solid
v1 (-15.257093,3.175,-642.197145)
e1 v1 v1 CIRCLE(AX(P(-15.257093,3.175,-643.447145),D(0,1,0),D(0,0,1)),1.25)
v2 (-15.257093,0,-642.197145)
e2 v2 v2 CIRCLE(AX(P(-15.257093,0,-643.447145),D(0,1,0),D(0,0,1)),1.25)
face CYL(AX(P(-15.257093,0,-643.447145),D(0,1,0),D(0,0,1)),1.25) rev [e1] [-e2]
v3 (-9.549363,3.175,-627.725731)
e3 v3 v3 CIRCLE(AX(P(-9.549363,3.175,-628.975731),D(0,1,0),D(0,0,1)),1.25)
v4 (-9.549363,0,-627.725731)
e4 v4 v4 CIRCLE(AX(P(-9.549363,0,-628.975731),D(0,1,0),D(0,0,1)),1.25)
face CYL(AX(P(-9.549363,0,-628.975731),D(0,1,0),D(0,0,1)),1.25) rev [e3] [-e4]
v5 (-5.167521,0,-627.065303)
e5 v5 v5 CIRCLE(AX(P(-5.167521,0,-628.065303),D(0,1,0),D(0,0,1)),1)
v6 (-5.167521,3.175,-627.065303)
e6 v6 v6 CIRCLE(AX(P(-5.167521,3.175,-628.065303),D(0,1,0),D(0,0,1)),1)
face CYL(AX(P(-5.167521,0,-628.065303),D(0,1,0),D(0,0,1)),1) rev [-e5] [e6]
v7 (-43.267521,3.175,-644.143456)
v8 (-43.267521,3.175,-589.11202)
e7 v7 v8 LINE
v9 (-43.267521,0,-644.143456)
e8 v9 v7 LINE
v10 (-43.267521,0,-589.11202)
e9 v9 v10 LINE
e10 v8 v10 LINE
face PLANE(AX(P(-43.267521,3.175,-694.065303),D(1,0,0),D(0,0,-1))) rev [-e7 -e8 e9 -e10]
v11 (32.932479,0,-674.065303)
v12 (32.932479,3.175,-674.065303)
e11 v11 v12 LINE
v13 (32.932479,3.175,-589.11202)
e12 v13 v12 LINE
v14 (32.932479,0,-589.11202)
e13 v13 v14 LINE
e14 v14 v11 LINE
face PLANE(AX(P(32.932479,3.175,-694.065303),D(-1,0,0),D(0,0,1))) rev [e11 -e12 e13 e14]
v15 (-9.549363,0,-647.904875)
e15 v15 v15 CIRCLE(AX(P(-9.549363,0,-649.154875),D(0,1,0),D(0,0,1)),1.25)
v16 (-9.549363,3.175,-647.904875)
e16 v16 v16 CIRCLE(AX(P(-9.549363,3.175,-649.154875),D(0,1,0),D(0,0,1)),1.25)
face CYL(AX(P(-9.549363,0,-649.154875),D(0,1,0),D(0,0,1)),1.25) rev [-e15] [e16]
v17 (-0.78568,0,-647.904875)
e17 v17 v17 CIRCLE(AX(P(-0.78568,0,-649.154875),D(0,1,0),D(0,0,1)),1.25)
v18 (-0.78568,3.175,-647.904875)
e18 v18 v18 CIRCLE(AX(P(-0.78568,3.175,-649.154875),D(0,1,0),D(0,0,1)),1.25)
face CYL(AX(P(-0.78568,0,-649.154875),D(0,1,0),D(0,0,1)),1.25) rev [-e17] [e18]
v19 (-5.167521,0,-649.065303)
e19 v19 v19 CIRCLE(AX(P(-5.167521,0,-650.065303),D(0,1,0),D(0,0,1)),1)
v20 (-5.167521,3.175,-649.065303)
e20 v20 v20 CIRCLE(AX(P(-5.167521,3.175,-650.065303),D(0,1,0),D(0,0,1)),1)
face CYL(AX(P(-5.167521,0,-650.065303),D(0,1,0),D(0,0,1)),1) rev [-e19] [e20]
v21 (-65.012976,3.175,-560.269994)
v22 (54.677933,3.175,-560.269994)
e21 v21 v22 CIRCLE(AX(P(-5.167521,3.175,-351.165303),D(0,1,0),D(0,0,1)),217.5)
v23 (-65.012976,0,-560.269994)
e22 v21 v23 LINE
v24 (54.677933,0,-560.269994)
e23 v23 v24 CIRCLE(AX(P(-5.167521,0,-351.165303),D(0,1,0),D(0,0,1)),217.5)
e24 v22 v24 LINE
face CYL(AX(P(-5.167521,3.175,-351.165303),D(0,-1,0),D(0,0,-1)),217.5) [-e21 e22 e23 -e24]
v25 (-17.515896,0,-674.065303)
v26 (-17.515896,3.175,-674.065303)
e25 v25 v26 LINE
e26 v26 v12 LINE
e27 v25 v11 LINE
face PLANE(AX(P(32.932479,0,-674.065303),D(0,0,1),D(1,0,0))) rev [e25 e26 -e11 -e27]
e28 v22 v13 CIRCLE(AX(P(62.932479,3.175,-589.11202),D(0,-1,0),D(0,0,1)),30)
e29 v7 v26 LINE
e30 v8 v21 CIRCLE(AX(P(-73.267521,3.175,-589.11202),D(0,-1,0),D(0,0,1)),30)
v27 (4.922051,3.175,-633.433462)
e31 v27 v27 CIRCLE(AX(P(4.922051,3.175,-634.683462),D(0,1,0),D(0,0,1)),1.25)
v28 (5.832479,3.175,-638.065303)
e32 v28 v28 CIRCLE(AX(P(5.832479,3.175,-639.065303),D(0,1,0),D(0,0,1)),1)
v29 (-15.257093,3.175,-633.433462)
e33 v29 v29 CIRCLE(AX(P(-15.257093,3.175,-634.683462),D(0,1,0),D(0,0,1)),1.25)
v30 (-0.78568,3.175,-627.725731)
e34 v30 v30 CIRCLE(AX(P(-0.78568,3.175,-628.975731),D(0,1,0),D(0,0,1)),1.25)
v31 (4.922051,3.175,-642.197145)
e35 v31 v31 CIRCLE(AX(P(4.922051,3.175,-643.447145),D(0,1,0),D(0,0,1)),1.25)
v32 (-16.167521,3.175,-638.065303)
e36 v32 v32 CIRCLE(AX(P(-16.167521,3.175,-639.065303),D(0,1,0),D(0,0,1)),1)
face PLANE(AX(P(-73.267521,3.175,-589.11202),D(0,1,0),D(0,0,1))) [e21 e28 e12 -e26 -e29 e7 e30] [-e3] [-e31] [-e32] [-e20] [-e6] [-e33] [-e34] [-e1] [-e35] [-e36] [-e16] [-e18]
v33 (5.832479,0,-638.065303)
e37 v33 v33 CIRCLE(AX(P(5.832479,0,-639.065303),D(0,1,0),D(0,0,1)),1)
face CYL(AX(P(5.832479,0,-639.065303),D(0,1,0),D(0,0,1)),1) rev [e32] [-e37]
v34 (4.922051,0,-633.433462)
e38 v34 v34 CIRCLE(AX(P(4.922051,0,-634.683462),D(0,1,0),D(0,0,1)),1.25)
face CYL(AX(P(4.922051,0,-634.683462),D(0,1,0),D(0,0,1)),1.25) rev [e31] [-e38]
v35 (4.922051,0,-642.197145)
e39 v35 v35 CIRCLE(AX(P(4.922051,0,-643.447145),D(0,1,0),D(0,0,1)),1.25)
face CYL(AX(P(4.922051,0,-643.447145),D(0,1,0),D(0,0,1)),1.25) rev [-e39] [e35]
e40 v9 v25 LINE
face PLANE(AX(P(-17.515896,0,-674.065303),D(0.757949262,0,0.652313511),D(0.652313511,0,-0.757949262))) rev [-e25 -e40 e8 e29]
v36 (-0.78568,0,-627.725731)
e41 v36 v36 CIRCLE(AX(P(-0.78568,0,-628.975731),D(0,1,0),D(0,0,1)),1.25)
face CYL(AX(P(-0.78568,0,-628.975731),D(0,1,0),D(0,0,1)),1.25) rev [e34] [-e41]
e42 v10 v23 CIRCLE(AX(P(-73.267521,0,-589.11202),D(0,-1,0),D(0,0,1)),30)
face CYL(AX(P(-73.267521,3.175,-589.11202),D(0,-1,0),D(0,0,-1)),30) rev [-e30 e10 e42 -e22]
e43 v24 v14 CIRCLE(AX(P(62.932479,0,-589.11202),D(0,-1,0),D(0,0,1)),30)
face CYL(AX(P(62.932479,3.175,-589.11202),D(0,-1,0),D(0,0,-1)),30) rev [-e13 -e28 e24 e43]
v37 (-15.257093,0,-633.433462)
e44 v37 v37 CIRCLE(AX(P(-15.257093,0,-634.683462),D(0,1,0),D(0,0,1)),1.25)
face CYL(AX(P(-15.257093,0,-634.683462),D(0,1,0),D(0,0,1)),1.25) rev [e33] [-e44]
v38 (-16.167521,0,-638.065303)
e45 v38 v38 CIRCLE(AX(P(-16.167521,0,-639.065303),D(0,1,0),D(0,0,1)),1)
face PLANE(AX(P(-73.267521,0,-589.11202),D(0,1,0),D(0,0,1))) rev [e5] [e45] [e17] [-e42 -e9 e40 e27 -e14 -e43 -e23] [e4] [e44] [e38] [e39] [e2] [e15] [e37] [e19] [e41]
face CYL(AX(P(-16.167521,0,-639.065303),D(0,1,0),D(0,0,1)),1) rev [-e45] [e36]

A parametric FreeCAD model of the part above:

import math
import FreeCAD as App
import Part
import Sketcher

V = App.Vector

doc = App.newDocument("Part")
body = doc.addObject("PartDesign::Body", "Body")

sketch1 = doc.addObject("Sketcher::SketchObject", "Sketch")
body.addObject(sketch1)
sketch1.AttachmentSupport = (doc.XZ_Plane, [""])
sketch1.MapMode = "FlatFace"
sketch1.addGeometry([
    Part.LineSegment(V(32.932479, -694.065303, 0), V(-43.267521, -694.065303, 0)),
    Part.LineSegment(V(-43.267521, -694.065303, 0), V(-43.267521, -589.11202, 0)),
    Part.ArcOfCircle(Part.Circle(V(-73.267521, -589.11202, 0), V(0, 0, 1), 30), math.radians(0), math.radians(74.028956)),
    Part.ArcOfCircle(Part.Circle(V(-5.167521, -351.165303, 0), V(0, 0, 1), 217.5), math.radians(-74.028956), math.radians(254.028956)),
    Part.ArcOfCircle(Part.Circle(V(62.932479, -589.11202, 0), V(0, 0, 1), 30), math.radians(105.971044), math.radians(180)),
    Part.LineSegment(V(32.932479, -589.11202, 0), V(32.932479, -694.065303, 0)),
], False)
sketch1.addConstraint([
    Sketcher.Constraint("Coincident", 0, 2, 1, 1),
    Sketcher.Constraint("Tangent", 1, 2, 2, 1),
    Sketcher.Constraint("Tangent", 2, 2, 3, 2),
    Sketcher.Constraint("Tangent", 3, 1, 4, 1),
    Sketcher.Constraint("Tangent", 4, 2, 5, 1),
    Sketcher.Constraint("Coincident", 5, 2, 0, 1),
    Sketcher.Constraint("Horizontal", 0),
    Sketcher.Constraint("Vertical", 1),
    Sketcher.Constraint("Vertical", 5),
    Sketcher.Constraint("Equal", 2, 4),
    Sketcher.Constraint("Horizontal", 2, 3, 4, 3),
    Sketcher.Constraint("Radius", 2, 30.0),
    Sketcher.Constraint("Radius", 3, 217.5),
    Sketcher.Constraint("DistanceX", 0, 2, 0, 1, 76.2),
    Sketcher.Constraint("DistanceY", 0, 2, 3, 3, 342.9),
    Sketcher.Constraint("DistanceX", 2, 3, -1, 1, 73.267521),
    Sketcher.Constraint("DistanceY", 2, 3, -1, 1, 589.11202),
])
pad1 = doc.addObject("PartDesign::Pad", "Pad")
body.addObject(pad1)
pad1.Profile = sketch1
pad1.Length = 3.175
pad1.Reversed = True

sketch2 = doc.addObject("Sketcher::SketchObject", "Sketch001")
body.addObject(sketch2)
sketch2.AttachmentSupport = (doc.XZ_Plane, [""])
sketch2.MapMode = "FlatFace"
sketch2.AttachmentOffset = App.Placement(V(0, 0, -3.175), App.Rotation())
sketch2.addGeometry([
    Part.Circle(V(-15.257093, -634.683462, 0), V(0, 0, 1), 1.25),
    Part.Circle(V(-16.167521, -639.065303, 0), V(0, 0, 1), 1),
    Part.Circle(V(-15.257093, -643.447145, 0), V(0, 0, 1), 1.25),
    Part.Circle(V(-5.167521, -628.065303, 0), V(0, 0, 1), 1),
    Part.Circle(V(-9.549363, -628.975731, 0), V(0, 0, 1), 1.25),
    Part.Circle(V(-0.78568, -628.975731, 0), V(0, 0, 1), 1.25),
    Part.Circle(V(-9.549363, -649.154875, 0), V(0, 0, 1), 1.25),
    Part.Circle(V(-5.167521, -650.065303, 0), V(0, 0, 1), 1),
    Part.Circle(V(-0.78568, -649.154875, 0), V(0, 0, 1), 1.25),
    Part.Circle(V(4.922051, -643.447145, 0), V(0, 0, 1), 1.25),
    Part.Circle(V(5.832479, -639.065303, 0), V(0, 0, 1), 1),
    Part.Circle(V(4.922051, -634.683462, 0), V(0, 0, 1), 1.25),
], False)
sketch2.addConstraint([
    Sketcher.Constraint("Equal", 0, 2),
    Sketcher.Constraint("Equal", 1, 3),
    Sketcher.Constraint("Equal", 2, 4),
    Sketcher.Constraint("Equal", 4, 5),
    Sketcher.Constraint("Equal", 5, 6),
    Sketcher.Constraint("Equal", 3, 7),
    Sketcher.Constraint("Equal", 6, 8),
    Sketcher.Constraint("Equal", 8, 9),
    Sketcher.Constraint("Equal", 7, 10),
    Sketcher.Constraint("Equal", 9, 11),
    Sketcher.Constraint("Horizontal", 4, 3, 5, 3),
    Sketcher.Constraint("Horizontal", 6, 3, 8, 3),
    Sketcher.Constraint("Horizontal", 2, 3, 9, 3),
    Sketcher.Constraint("Horizontal", 1, 3, 10, 3),
    Sketcher.Constraint("Horizontal", 0, 3, 11, 3),
    Sketcher.Constraint("Vertical", 0, 3, 2, 3),
    Sketcher.Constraint("Vertical", 4, 3, 6, 3),
    Sketcher.Constraint("Vertical", 3, 3, 7, 3),
    Sketcher.Constraint("Vertical", 5, 3, 8, 3),
    Sketcher.Constraint("Vertical", 9, 3, 11, 3),
    Sketcher.Constraint("Diameter", 1, 2.0),
    Sketcher.Constraint("Diameter", 0, 2.5),
    Sketcher.Constraint("DistanceX", 1, 3, 3, 3, 11.0),
    Sketcher.Constraint("DistanceY", 1, 3, 3, 3, 11.0),
    Sketcher.Constraint("DistanceY", 7, 3, 1, 3, 11.0),
    Sketcher.Constraint("DistanceX", 3, 3, 10, 3, 11.0),
    Sketcher.Constraint("DistanceY", 0, 3, -1, 1, 634.683462),
    Sketcher.Constraint("DistanceX", 1, 3, -1, 1, 16.167521),
    Sketcher.Constraint("DistanceY", 4, 3, -1, 1, 628.975731),
    Sketcher.Constraint("DistanceX", 5, 3, -1, 1, 0.78568),
    Sketcher.Constraint("DistanceX", -1, 1, 9, 3, 4.922051),
    Sketcher.Constraint("DistanceY", 1, 3, 0, 3, 4.381841),
    Sketcher.Constraint("DistanceY", 2, 3, 1, 3, 4.381841),
    Sketcher.Constraint("DistanceX", 4, 3, 3, 3, 4.381841),
    Sketcher.Constraint("DistanceX", 0, 3, 4, 3, 5.707731),
    Sketcher.Constraint("DistanceY", 6, 3, 2, 3, 5.707731),
])
pocket1 = doc.addObject("PartDesign::Pocket", "Pocket")
body.addObject(pocket1)
pocket1.Profile = sketch2
pocket1.Type = "ThroughAll"
pocket1.Reversed = True

sketch3 = doc.addObject("Sketcher::SketchObject", "Sketch002")
body.addObject(sketch3)
sketch3.AttachmentSupport = (doc.XZ_Plane, [""])
sketch3.MapMode = "FlatFace"
sketch3.AttachmentOffset = App.Placement(V(0, 0, -3.175), App.Rotation())
sketch3.addGeometry([
    Part.LineSegment(V(32.932479, -694.065303, 0), V(-43.267521, -694.065303, 0)),
    Part.LineSegment(V(-43.267521, -694.065303, 0), V(-43.267521, -644.143456, 0)),
    Part.LineSegment(V(-43.267521, -644.143456, 0), V(-17.515896, -674.065303, 0)),
    Part.LineSegment(V(-17.515896, -674.065303, 0), V(32.932479, -674.065303, 0)),
    Part.LineSegment(V(32.932479, -674.065303, 0), V(32.932479, -694.065303, 0)),
], False)
sketch3.addConstraint([
    Sketcher.Constraint("Coincident", 0, 2, 1, 1),
    Sketcher.Constraint("Coincident", 1, 2, 2, 1),
    Sketcher.Constraint("Coincident", 2, 2, 3, 1),
    Sketcher.Constraint("Coincident", 3, 2, 4, 1),
    Sketcher.Constraint("Coincident", 4, 2, 0, 1),
    Sketcher.Constraint("Horizontal", 0),
    Sketcher.Constraint("Vertical", 1),
    Sketcher.Constraint("Horizontal", 3),
    Sketcher.Constraint("Vertical", 4),
    Sketcher.Constraint("DistanceY", 4, 2, 4, 1, 20.0),
    Sketcher.Constraint("DistanceX", 0, 2, 0, 1, 76.2),
    Sketcher.Constraint("DistanceX", 3, 1, 3, 2, 50.448375),
    Sketcher.Constraint("DistanceY", 1, 1, 1, 2, 49.921847),
    Sketcher.Constraint("DistanceX", 0, 2, -1, 1, 43.267521),
    Sketcher.Constraint("DistanceY", 0, 2, -1, 1, 694.065303),
])
pocket2 = doc.addObject("PartDesign::Pocket", "Pocket001")
body.addObject(pocket2)
pocket2.Profile = sketch3
pocket2.Type = "ThroughAll"
pocket2.Reversed = True

doc.recompute()
